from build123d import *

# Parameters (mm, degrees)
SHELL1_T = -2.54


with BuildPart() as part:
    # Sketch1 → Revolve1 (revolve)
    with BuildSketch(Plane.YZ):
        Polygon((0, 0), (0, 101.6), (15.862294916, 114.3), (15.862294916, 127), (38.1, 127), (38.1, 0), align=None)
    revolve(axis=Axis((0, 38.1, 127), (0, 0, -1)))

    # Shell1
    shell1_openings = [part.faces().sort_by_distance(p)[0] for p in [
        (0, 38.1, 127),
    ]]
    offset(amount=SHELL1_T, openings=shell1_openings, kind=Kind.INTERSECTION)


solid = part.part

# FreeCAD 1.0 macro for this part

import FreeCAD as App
import Part
import Sketcher
Q = App.Units.Quantity


def faces_at(feature, points):
    """Names of the faces that lie closest to the given points."""
    faces = feature.Shape.Faces
    near = lambda p: min(range(len(faces)), key=lambda i: faces[i].distToShape(Part.Vertex(*p))[0])
    return sorted({f"Face{near(p) + 1}" for p in points})


def add_polygon(sketch, points):
    """Adds a closed chain of lines whose ends are joined by coincident constraints."""
    first, n = sketch.GeometryCount, len(points)
    for a, b in zip(points, points[1:] + points[:1]):
        sketch.addGeometry(Part.LineSegment(App.Vector(*a, 0), App.Vector(*b, 0)), False)
    for i in range(n):
        sketch.addConstraint(Sketcher.Constraint("Coincident", first + i, 2, first + (i + 1) % n, 1))

doc = App.newDocument("Part")
body = doc.addObject("PartDesign::Body", "Body")

# Sketch on YZ plane
sketch1 = body.newObject("Sketcher::SketchObject", "Sketch")
sketch1.AttachmentSupport = (doc.getObject("YZ_Plane"), [""])
sketch1.MapMode = "FlatFace"
add_polygon(sketch1, [(0, 101.6), (0, 0), (38.1, 0), (38.1, 127), (15.862295, 127), (15.862295, 114.3)])  # lines 0-5
sketch1.addGeometry(Part.LineSegment(App.Vector(38.1, 127, 0), App.Vector(38.1, 0, 0)), True)  # axis
sketch1.addConstraint([
    Sketcher.Constraint("Vertical", 0),
    Sketcher.Constraint("Horizontal", 1),
    Sketcher.Constraint("Vertical", 2),
    Sketcher.Constraint("Horizontal", 3),
    Sketcher.Constraint("Vertical", 4),
    Sketcher.Constraint("Vertical", 6),
    Sketcher.Constraint("Coincident", 0, 2, -1, 1),
    Sketcher.Constraint("Coincident", 6, 1, 2, 2),
    Sketcher.Constraint("PointOnObject", 6, 2, -1),
    Sketcher.Constraint("DistanceY", 0, 2, 0, 1, Q("4 in")),
    Sketcher.Constraint("DistanceY", 2, 1, 2, 2, Q("5 in")),
    Sketcher.Constraint("DistanceX", 1, 1, 1, 2, Q("1.5 in")),
    Sketcher.Constraint("DistanceY", 4, 2, 4, 1, Q("0.5 in")),
    Sketcher.Constraint("Distance", 5, Q("0.8 in")),
])
revolution = body.newObject("PartDesign::Revolution", "Revolution")
revolution.Profile = sketch1
revolution.ReferenceAxis = (sketch1, ["Axis0"])
revolution.Angle = 360
doc.recompute()

thickness = body.newObject("PartDesign::Thickness", "Thickness")
thickness.Base = (revolution, faces_at(revolution, [(0, 38.1, 127)]))
thickness.Value = Q("0.1 in")
thickness.Reversed = True
thickness.Join = "Intersection"

doc.recompute()
